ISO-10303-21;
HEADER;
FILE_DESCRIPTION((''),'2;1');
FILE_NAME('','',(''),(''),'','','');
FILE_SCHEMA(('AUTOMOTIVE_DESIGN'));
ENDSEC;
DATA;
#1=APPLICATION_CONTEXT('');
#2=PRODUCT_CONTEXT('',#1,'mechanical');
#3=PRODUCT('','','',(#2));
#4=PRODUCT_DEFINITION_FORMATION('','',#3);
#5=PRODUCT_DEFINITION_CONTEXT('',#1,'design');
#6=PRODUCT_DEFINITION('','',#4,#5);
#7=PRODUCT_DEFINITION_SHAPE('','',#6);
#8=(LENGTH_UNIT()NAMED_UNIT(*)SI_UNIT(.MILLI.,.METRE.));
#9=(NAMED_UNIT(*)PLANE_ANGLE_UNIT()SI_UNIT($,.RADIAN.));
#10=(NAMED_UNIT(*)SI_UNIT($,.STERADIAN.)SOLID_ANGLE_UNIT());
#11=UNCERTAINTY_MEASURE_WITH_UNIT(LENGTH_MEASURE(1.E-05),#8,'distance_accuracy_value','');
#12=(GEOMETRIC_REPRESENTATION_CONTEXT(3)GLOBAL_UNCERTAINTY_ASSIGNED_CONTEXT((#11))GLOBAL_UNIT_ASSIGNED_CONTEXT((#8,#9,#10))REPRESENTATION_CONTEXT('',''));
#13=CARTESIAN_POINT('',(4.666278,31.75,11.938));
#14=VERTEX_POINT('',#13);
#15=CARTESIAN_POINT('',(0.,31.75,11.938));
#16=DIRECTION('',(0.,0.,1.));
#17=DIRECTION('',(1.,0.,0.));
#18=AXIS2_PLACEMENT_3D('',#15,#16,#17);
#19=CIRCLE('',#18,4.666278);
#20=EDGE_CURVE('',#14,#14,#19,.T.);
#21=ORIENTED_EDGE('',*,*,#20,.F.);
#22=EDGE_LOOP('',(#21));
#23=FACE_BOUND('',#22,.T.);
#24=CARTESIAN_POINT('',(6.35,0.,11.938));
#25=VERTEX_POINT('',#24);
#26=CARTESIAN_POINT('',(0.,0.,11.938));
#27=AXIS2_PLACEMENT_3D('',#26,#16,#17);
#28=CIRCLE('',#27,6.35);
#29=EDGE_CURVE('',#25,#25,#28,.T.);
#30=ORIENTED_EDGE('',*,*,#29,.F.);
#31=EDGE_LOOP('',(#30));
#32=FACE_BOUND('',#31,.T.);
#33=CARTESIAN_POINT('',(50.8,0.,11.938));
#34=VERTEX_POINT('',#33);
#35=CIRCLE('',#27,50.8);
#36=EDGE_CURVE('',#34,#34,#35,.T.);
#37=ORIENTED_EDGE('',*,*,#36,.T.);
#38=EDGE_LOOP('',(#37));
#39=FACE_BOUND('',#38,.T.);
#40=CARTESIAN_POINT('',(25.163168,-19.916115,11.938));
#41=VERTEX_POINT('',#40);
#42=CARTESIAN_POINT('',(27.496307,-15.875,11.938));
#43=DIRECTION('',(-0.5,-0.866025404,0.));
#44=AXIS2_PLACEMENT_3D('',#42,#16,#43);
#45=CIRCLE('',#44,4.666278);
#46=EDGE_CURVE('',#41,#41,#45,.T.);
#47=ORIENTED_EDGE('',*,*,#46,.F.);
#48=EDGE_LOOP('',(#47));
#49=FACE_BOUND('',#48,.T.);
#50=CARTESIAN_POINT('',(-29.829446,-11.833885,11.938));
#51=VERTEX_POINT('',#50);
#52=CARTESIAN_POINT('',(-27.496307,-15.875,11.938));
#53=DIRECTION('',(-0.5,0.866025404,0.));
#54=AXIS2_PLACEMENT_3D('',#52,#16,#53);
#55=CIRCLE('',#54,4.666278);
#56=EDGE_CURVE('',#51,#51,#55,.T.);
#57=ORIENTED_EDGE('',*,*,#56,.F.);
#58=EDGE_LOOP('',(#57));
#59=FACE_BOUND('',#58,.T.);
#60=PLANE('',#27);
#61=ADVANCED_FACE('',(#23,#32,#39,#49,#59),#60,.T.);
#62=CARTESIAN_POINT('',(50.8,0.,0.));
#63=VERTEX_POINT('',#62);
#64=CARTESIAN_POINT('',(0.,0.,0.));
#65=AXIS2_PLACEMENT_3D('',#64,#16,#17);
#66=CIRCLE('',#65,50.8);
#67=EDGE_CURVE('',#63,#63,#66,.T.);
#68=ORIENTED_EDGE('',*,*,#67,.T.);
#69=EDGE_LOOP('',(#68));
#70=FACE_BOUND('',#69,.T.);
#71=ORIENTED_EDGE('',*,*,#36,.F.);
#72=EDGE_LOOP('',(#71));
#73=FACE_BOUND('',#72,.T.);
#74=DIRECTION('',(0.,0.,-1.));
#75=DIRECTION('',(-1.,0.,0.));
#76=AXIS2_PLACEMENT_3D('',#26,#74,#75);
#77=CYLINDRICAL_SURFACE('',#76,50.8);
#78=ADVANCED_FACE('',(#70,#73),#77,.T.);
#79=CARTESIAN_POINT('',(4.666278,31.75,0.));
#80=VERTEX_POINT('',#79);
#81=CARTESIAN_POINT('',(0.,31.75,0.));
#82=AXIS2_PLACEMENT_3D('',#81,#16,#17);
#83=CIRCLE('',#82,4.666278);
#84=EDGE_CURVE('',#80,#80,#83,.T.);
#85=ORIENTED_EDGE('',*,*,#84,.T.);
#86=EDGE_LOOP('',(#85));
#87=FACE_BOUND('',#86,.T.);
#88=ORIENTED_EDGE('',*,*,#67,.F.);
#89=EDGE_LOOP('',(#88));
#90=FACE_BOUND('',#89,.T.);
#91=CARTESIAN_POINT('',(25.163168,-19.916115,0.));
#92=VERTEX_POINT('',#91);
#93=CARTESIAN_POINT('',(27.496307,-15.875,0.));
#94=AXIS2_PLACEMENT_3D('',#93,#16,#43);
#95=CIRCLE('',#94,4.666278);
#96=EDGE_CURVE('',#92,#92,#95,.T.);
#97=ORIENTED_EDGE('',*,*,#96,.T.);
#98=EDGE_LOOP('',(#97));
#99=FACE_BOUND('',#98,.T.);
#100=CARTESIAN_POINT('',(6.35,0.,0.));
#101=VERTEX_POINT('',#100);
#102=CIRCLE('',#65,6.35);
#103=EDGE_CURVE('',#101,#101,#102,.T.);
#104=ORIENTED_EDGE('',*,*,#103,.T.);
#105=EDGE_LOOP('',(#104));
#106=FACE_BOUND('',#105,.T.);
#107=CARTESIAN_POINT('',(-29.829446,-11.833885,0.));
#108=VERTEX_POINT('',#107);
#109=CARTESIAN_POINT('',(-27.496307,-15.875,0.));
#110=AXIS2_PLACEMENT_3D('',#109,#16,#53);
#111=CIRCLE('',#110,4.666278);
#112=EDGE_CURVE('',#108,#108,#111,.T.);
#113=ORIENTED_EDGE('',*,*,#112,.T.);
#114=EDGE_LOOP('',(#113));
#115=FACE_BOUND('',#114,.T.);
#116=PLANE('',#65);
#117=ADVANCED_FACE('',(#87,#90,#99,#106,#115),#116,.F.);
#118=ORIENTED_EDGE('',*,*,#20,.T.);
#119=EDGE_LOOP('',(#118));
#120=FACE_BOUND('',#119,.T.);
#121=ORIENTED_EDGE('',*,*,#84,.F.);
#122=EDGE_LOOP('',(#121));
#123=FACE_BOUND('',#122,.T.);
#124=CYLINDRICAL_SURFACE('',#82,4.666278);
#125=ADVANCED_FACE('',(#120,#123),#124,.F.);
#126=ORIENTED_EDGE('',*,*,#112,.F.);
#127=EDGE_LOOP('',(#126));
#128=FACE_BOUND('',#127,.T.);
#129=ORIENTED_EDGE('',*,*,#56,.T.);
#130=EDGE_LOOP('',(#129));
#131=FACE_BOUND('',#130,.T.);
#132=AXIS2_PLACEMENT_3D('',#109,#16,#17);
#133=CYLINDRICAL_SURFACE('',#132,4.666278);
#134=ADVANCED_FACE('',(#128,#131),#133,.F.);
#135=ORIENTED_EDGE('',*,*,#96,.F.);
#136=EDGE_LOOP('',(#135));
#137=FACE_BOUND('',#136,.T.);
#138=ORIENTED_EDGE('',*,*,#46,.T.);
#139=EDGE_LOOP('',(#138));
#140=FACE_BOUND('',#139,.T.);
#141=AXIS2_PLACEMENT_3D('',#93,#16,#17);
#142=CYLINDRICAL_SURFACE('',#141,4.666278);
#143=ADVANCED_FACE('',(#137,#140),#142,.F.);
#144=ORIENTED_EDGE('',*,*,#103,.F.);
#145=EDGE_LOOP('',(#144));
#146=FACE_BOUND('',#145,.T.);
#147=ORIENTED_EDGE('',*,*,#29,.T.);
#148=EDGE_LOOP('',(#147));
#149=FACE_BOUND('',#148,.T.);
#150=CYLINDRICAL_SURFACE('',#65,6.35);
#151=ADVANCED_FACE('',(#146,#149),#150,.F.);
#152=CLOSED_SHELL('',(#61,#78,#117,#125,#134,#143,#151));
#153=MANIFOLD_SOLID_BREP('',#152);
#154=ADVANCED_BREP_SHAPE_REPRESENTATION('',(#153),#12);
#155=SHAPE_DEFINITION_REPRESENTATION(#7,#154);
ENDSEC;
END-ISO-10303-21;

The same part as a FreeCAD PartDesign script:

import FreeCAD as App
import Part
import Sketcher

V = App.Vector
Q = App.Units.Quantity

doc = App.newDocument("Part")
body = doc.addObject("PartDesign::Body", "Body")

# Sketch on XY plane
sketch1 = doc.addObject("Sketcher::SketchObject", "Sketch")
body.addObject(sketch1)
sketch1.AttachmentSupport = (doc.XY_Plane, [""])
sketch1.MapMode = "FlatFace"
sketch1.addGeometry(Part.Circle(V(0, 0, 0), V(0, 0, 1), 51), False)
sketch1.addConstraint(Sketcher.Constraint("Coincident", 0, 3, -1, 1))
sketch1.addConstraint(Sketcher.Constraint("Diameter", 0, Q("4 in")))
pad1 = doc.addObject("PartDesign::Pad", "Pad")
body.addObject(pad1)
pad1.Profile = sketch1
pad1.Length = Q("0.47 in")

# Sketch on XY plane
sketch2 = doc.addObject("Sketcher::SketchObject", "Sketch001")
body.addObject(sketch2)
sketch2.AttachmentSupport = (doc.XY_Plane, [""])
sketch2.MapMode = "FlatFace"
sketch2.AttachmentOffset = App.Placement(V(0, 0, 0.47 * 25.4), App.Rotation())
sketch2.addGeometry(Part.Circle(V(0, 0, 0), V(0, 0, 1), 6), False)
sketch2.addConstraint(Sketcher.Constraint("Coincident", 0, 3, -1, 1))
sketch2.addConstraint(Sketcher.Constraint("Diameter", 0, Q("0.5 in")))
pocket1 = doc.addObject("PartDesign::Pocket", "Pocket")
body.addObject(pocket1)
pocket1.Profile = sketch2
pocket1.Type = "ThroughAll"

# Sketch on XY plane
sketch3 = doc.addObject("Sketcher::SketchObject", "Sketch002")
body.addObject(sketch3)
sketch3.AttachmentSupport = (doc.XY_Plane, [""])
sketch3.MapMode = "FlatFace"
sketch3.AttachmentOffset = App.Placement(V(0, 0, 0.47 * 25.4), App.Rotation())
sketch3.addGeometry(Part.Circle(V(0, 31.8, 0), V(0, 0, 1), 4.7), False)
sketch3.addConstraint(Sketcher.Constraint("PointOnObject", 0, 3, -2))
sketch3.addConstraint(Sketcher.Constraint("DistanceY", -1, 1, 0, 3, Q("1.25 in")))
sketch3.addConstraint(Sketcher.Constraint("Diameter", 0, 9.332556))
pocket2 = doc.addObject("PartDesign::Pocket", "Pocket001")
body.addObject(pocket2)
pocket2.Profile = sketch3
pocket2.Length = Q("0.47 in")
doc.recompute()

polarpattern = doc.addObject("PartDesign::PolarPattern", "PolarPattern")
body.addObject(polarpattern)
polarpattern.Originals = [pocket2]
polarpattern.Axis = (doc.Z_Axis, [""])
polarpattern.Angle = 360
polarpattern.Occurrences = 3
body.Tip = polarpattern

doc.recompute()
